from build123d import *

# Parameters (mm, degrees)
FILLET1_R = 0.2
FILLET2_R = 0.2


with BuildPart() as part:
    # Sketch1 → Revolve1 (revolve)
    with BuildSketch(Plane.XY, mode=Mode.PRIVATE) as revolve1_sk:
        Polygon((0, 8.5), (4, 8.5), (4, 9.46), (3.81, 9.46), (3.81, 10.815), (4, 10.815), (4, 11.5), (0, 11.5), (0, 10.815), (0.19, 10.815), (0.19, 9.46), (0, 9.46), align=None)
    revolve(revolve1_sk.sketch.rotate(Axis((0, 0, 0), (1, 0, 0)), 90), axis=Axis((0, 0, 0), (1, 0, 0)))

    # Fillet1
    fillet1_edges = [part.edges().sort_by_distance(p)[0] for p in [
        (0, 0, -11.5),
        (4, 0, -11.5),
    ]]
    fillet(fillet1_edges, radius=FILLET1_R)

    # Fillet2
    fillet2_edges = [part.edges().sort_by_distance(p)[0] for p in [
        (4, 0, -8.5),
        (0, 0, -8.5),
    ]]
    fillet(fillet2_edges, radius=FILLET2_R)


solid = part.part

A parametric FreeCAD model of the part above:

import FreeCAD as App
import Part
import Sketcher
from FreeCAD import Vector
Q = App.Units.Quantity


def edges_at(feature, points):
    """Names of the edges that pass closest to the given points."""
    edges = feature.Shape.Edges
    near = lambda p: min(range(len(edges)), key=lambda i: edges[i].distToShape(Part.Vertex(*p))[0])
    return sorted({f"Edge{near(p) + 1}" for p in points})


def add_polygon(sketch, points):
    """Adds a closed chain of lines whose ends are joined by coincident constraints."""
    first, n = sketch.GeometryCount, len(points)
    for a, b in zip(points, points[1:] + points[:1]):
        sketch.addGeometry(Part.LineSegment(App.Vector(*a, 0), App.Vector(*b, 0)), False)
    for i in range(n):
        sketch.addConstraint(Sketcher.Constraint("Coincident", first + i, 2, first + (i + 1) % n, 1))

doc = App.newDocument("Part")
body = doc.addObject("PartDesign::Body", "Body")

sketch1 = body.newObject("Sketcher::SketchObject", "Sketch")
sketch1.AttachmentSupport = (doc.getObject("XY_Plane"), [""])
sketch1.MapMode = "FlatFace"
add_polygon(sketch1, [(0, 8.5), (4, 8.5), (4, 9.46), (3.81, 9.46), (3.81, 10.81), (4, 10.81), (4, 11.5), (0, 11.5), (0, 10.81), (0.19, 10.81), (0.19, 9.46), (0, 9.46)])
sketch1.addConstraint(Sketcher.Constraint("Horizontal", 0))
sketch1.addConstraint(Sketcher.Constraint("Vertical", 1))
sketch1.addConstraint(Sketcher.Constraint("Horizontal", 2))
sketch1.addConstraint(Sketcher.Constraint("Vertical", 3))
sketch1.addConstraint(Sketcher.Constraint("Horizontal", 4))
sketch1.addConstraint(Sketcher.Constraint("Vertical", 5))
sketch1.addConstraint(Sketcher.Constraint("Horizontal", 6))
sketch1.addConstraint(Sketcher.Constraint("Vertical", 7))
sketch1.addConstraint(Sketcher.Constraint("Horizontal", 8))
sketch1.addConstraint(Sketcher.Constraint("Vertical", 9))
sketch1.addConstraint(Sketcher.Constraint("Horizontal", 10))
sketch1.addConstraint(Sketcher.Constraint("Vertical", 11))
sketch1.addConstraint(Sketcher.Constraint("PointOnObject", 6, 2, -2))
sketch1.addConstraint(Sketcher.Constraint("PointOnObject", 10, 2, -2))
sketch1.addConstraint(Sketcher.Constraint("Horizontal", 4, 2, 7, 2))
sketch1.addConstraint(Sketcher.Constraint("Horizontal", 2, 2, 9, 2))
sketch1.addConstraint(Sketcher.Constraint("Vertical", 1, 2, 4, 2))
sketch1.addConstraint(Sketcher.Constraint("Equal", 4, 8))
sketch1.addConstraint(Sketcher.Constraint("DistanceX", 0, 1, 0, 2, Q("4 mm")))
sketch1.addConstraint(Sketcher.Constraint("DistanceY", 0, 2, 5, 2, Q("3 mm")))
sketch1.addConstraint(Sketcher.Constraint("DistanceX", 2, 2, 2, 1, Q("0.19 mm")))
sketch1.addConstraint(Sketcher.Constraint("DistanceY", 1, 1, 1, 2, Q("0.96 mm")))
sketch1.addConstraint(Sketcher.Constraint("DistanceY", -1, 1, 0, 2, Q("8.5 mm")))
sketch1.addConstraint(Sketcher.Constraint("DistanceY", 3, 1, 3, 2, Q("1.355 mm")))
revolution = body.newObject("PartDesign::Revolution", "Revolution")
revolution.Profile = sketch1
revolution.ReferenceAxis = (sketch1, ["H_Axis"])
revolution.Angle = 360
doc.recompute()

fillet = body.newObject("PartDesign::Fillet", "Fillet")
fillet.Base = (revolution, edges_at(revolution, [(0, 0, -11.5), (4, 0, -11.5)]))
fillet.Radius = 0.2
doc.recompute()

fillet2 = body.newObject("PartDesign::Fillet", "Fillet001")
fillet2.Base = (fillet, edges_at(fillet, [(4, 0, -8.5), (0, 0, -8.5)]))
fillet2.Radius = 0.2

doc.recompute()
